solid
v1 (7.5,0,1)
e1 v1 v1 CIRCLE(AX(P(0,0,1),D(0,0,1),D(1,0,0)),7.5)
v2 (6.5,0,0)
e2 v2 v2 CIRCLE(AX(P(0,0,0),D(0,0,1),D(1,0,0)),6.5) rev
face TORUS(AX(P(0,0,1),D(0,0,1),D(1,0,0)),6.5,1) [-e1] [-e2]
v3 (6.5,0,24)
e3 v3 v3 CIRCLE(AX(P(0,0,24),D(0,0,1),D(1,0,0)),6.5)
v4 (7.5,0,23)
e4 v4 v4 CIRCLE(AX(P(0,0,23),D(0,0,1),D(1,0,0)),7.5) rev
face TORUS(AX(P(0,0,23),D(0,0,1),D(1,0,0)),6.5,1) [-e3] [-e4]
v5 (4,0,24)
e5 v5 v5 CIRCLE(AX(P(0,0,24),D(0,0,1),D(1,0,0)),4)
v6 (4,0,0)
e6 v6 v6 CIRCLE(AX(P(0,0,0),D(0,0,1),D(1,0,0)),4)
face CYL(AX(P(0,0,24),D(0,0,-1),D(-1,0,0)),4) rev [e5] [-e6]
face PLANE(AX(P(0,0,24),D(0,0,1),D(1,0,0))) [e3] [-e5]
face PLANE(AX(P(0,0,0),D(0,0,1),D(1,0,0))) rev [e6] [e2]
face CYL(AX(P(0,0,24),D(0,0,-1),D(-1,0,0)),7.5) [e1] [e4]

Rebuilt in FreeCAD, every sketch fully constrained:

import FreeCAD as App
import Part
import Sketcher
from FreeCAD import Vector


def edges_at(feature, points):
    """Names of the edges that pass closest to the given points."""
    edges = feature.Shape.Edges
    near = lambda p: min(range(len(edges)), key=lambda i: edges[i].distToShape(Part.Vertex(*p))[0])
    return sorted({f"Edge{near(p) + 1}" for p in points})

doc = App.newDocument("Part")
body = doc.addObject("PartDesign::Body", "Body")

sketch1 = body.newObject("Sketcher::SketchObject", "Sketch")
sketch1.AttachmentSupport = (doc.getObject("XY_Plane"), [""])
sketch1.MapMode = "FlatFace"
sketch1.addGeometry(Part.Circle(Vector(0, 0, 0), Vector(0, 0, 1), 7.5), False)
sketch1.addGeometry(Part.Circle(Vector(0, 0, 0), Vector(0, 0, 1), 4), False)
sketch1.addConstraint(Sketcher.Constraint("Coincident", 0, 3, -1, 1))
sketch1.addConstraint(Sketcher.Constraint("Coincident", 1, 3, -1, 1))
sketch1.addConstraint(Sketcher.Constraint("Diameter", 0, 15.0))
sketch1.addConstraint(Sketcher.Constraint("Diameter", 1, 8.0))
pad1 = body.newObject("PartDesign::Pad", "Pad")
pad1.Profile = sketch1
pad1.Length = 24
doc.recompute()

fillet = body.newObject("PartDesign::Fillet", "Fillet")
fillet.Base = (pad1, edges_at(pad1, [(-7.5, 0, 0), (-7.5, 0, 24)]))
fillet.Radius = 1

doc.recompute()
